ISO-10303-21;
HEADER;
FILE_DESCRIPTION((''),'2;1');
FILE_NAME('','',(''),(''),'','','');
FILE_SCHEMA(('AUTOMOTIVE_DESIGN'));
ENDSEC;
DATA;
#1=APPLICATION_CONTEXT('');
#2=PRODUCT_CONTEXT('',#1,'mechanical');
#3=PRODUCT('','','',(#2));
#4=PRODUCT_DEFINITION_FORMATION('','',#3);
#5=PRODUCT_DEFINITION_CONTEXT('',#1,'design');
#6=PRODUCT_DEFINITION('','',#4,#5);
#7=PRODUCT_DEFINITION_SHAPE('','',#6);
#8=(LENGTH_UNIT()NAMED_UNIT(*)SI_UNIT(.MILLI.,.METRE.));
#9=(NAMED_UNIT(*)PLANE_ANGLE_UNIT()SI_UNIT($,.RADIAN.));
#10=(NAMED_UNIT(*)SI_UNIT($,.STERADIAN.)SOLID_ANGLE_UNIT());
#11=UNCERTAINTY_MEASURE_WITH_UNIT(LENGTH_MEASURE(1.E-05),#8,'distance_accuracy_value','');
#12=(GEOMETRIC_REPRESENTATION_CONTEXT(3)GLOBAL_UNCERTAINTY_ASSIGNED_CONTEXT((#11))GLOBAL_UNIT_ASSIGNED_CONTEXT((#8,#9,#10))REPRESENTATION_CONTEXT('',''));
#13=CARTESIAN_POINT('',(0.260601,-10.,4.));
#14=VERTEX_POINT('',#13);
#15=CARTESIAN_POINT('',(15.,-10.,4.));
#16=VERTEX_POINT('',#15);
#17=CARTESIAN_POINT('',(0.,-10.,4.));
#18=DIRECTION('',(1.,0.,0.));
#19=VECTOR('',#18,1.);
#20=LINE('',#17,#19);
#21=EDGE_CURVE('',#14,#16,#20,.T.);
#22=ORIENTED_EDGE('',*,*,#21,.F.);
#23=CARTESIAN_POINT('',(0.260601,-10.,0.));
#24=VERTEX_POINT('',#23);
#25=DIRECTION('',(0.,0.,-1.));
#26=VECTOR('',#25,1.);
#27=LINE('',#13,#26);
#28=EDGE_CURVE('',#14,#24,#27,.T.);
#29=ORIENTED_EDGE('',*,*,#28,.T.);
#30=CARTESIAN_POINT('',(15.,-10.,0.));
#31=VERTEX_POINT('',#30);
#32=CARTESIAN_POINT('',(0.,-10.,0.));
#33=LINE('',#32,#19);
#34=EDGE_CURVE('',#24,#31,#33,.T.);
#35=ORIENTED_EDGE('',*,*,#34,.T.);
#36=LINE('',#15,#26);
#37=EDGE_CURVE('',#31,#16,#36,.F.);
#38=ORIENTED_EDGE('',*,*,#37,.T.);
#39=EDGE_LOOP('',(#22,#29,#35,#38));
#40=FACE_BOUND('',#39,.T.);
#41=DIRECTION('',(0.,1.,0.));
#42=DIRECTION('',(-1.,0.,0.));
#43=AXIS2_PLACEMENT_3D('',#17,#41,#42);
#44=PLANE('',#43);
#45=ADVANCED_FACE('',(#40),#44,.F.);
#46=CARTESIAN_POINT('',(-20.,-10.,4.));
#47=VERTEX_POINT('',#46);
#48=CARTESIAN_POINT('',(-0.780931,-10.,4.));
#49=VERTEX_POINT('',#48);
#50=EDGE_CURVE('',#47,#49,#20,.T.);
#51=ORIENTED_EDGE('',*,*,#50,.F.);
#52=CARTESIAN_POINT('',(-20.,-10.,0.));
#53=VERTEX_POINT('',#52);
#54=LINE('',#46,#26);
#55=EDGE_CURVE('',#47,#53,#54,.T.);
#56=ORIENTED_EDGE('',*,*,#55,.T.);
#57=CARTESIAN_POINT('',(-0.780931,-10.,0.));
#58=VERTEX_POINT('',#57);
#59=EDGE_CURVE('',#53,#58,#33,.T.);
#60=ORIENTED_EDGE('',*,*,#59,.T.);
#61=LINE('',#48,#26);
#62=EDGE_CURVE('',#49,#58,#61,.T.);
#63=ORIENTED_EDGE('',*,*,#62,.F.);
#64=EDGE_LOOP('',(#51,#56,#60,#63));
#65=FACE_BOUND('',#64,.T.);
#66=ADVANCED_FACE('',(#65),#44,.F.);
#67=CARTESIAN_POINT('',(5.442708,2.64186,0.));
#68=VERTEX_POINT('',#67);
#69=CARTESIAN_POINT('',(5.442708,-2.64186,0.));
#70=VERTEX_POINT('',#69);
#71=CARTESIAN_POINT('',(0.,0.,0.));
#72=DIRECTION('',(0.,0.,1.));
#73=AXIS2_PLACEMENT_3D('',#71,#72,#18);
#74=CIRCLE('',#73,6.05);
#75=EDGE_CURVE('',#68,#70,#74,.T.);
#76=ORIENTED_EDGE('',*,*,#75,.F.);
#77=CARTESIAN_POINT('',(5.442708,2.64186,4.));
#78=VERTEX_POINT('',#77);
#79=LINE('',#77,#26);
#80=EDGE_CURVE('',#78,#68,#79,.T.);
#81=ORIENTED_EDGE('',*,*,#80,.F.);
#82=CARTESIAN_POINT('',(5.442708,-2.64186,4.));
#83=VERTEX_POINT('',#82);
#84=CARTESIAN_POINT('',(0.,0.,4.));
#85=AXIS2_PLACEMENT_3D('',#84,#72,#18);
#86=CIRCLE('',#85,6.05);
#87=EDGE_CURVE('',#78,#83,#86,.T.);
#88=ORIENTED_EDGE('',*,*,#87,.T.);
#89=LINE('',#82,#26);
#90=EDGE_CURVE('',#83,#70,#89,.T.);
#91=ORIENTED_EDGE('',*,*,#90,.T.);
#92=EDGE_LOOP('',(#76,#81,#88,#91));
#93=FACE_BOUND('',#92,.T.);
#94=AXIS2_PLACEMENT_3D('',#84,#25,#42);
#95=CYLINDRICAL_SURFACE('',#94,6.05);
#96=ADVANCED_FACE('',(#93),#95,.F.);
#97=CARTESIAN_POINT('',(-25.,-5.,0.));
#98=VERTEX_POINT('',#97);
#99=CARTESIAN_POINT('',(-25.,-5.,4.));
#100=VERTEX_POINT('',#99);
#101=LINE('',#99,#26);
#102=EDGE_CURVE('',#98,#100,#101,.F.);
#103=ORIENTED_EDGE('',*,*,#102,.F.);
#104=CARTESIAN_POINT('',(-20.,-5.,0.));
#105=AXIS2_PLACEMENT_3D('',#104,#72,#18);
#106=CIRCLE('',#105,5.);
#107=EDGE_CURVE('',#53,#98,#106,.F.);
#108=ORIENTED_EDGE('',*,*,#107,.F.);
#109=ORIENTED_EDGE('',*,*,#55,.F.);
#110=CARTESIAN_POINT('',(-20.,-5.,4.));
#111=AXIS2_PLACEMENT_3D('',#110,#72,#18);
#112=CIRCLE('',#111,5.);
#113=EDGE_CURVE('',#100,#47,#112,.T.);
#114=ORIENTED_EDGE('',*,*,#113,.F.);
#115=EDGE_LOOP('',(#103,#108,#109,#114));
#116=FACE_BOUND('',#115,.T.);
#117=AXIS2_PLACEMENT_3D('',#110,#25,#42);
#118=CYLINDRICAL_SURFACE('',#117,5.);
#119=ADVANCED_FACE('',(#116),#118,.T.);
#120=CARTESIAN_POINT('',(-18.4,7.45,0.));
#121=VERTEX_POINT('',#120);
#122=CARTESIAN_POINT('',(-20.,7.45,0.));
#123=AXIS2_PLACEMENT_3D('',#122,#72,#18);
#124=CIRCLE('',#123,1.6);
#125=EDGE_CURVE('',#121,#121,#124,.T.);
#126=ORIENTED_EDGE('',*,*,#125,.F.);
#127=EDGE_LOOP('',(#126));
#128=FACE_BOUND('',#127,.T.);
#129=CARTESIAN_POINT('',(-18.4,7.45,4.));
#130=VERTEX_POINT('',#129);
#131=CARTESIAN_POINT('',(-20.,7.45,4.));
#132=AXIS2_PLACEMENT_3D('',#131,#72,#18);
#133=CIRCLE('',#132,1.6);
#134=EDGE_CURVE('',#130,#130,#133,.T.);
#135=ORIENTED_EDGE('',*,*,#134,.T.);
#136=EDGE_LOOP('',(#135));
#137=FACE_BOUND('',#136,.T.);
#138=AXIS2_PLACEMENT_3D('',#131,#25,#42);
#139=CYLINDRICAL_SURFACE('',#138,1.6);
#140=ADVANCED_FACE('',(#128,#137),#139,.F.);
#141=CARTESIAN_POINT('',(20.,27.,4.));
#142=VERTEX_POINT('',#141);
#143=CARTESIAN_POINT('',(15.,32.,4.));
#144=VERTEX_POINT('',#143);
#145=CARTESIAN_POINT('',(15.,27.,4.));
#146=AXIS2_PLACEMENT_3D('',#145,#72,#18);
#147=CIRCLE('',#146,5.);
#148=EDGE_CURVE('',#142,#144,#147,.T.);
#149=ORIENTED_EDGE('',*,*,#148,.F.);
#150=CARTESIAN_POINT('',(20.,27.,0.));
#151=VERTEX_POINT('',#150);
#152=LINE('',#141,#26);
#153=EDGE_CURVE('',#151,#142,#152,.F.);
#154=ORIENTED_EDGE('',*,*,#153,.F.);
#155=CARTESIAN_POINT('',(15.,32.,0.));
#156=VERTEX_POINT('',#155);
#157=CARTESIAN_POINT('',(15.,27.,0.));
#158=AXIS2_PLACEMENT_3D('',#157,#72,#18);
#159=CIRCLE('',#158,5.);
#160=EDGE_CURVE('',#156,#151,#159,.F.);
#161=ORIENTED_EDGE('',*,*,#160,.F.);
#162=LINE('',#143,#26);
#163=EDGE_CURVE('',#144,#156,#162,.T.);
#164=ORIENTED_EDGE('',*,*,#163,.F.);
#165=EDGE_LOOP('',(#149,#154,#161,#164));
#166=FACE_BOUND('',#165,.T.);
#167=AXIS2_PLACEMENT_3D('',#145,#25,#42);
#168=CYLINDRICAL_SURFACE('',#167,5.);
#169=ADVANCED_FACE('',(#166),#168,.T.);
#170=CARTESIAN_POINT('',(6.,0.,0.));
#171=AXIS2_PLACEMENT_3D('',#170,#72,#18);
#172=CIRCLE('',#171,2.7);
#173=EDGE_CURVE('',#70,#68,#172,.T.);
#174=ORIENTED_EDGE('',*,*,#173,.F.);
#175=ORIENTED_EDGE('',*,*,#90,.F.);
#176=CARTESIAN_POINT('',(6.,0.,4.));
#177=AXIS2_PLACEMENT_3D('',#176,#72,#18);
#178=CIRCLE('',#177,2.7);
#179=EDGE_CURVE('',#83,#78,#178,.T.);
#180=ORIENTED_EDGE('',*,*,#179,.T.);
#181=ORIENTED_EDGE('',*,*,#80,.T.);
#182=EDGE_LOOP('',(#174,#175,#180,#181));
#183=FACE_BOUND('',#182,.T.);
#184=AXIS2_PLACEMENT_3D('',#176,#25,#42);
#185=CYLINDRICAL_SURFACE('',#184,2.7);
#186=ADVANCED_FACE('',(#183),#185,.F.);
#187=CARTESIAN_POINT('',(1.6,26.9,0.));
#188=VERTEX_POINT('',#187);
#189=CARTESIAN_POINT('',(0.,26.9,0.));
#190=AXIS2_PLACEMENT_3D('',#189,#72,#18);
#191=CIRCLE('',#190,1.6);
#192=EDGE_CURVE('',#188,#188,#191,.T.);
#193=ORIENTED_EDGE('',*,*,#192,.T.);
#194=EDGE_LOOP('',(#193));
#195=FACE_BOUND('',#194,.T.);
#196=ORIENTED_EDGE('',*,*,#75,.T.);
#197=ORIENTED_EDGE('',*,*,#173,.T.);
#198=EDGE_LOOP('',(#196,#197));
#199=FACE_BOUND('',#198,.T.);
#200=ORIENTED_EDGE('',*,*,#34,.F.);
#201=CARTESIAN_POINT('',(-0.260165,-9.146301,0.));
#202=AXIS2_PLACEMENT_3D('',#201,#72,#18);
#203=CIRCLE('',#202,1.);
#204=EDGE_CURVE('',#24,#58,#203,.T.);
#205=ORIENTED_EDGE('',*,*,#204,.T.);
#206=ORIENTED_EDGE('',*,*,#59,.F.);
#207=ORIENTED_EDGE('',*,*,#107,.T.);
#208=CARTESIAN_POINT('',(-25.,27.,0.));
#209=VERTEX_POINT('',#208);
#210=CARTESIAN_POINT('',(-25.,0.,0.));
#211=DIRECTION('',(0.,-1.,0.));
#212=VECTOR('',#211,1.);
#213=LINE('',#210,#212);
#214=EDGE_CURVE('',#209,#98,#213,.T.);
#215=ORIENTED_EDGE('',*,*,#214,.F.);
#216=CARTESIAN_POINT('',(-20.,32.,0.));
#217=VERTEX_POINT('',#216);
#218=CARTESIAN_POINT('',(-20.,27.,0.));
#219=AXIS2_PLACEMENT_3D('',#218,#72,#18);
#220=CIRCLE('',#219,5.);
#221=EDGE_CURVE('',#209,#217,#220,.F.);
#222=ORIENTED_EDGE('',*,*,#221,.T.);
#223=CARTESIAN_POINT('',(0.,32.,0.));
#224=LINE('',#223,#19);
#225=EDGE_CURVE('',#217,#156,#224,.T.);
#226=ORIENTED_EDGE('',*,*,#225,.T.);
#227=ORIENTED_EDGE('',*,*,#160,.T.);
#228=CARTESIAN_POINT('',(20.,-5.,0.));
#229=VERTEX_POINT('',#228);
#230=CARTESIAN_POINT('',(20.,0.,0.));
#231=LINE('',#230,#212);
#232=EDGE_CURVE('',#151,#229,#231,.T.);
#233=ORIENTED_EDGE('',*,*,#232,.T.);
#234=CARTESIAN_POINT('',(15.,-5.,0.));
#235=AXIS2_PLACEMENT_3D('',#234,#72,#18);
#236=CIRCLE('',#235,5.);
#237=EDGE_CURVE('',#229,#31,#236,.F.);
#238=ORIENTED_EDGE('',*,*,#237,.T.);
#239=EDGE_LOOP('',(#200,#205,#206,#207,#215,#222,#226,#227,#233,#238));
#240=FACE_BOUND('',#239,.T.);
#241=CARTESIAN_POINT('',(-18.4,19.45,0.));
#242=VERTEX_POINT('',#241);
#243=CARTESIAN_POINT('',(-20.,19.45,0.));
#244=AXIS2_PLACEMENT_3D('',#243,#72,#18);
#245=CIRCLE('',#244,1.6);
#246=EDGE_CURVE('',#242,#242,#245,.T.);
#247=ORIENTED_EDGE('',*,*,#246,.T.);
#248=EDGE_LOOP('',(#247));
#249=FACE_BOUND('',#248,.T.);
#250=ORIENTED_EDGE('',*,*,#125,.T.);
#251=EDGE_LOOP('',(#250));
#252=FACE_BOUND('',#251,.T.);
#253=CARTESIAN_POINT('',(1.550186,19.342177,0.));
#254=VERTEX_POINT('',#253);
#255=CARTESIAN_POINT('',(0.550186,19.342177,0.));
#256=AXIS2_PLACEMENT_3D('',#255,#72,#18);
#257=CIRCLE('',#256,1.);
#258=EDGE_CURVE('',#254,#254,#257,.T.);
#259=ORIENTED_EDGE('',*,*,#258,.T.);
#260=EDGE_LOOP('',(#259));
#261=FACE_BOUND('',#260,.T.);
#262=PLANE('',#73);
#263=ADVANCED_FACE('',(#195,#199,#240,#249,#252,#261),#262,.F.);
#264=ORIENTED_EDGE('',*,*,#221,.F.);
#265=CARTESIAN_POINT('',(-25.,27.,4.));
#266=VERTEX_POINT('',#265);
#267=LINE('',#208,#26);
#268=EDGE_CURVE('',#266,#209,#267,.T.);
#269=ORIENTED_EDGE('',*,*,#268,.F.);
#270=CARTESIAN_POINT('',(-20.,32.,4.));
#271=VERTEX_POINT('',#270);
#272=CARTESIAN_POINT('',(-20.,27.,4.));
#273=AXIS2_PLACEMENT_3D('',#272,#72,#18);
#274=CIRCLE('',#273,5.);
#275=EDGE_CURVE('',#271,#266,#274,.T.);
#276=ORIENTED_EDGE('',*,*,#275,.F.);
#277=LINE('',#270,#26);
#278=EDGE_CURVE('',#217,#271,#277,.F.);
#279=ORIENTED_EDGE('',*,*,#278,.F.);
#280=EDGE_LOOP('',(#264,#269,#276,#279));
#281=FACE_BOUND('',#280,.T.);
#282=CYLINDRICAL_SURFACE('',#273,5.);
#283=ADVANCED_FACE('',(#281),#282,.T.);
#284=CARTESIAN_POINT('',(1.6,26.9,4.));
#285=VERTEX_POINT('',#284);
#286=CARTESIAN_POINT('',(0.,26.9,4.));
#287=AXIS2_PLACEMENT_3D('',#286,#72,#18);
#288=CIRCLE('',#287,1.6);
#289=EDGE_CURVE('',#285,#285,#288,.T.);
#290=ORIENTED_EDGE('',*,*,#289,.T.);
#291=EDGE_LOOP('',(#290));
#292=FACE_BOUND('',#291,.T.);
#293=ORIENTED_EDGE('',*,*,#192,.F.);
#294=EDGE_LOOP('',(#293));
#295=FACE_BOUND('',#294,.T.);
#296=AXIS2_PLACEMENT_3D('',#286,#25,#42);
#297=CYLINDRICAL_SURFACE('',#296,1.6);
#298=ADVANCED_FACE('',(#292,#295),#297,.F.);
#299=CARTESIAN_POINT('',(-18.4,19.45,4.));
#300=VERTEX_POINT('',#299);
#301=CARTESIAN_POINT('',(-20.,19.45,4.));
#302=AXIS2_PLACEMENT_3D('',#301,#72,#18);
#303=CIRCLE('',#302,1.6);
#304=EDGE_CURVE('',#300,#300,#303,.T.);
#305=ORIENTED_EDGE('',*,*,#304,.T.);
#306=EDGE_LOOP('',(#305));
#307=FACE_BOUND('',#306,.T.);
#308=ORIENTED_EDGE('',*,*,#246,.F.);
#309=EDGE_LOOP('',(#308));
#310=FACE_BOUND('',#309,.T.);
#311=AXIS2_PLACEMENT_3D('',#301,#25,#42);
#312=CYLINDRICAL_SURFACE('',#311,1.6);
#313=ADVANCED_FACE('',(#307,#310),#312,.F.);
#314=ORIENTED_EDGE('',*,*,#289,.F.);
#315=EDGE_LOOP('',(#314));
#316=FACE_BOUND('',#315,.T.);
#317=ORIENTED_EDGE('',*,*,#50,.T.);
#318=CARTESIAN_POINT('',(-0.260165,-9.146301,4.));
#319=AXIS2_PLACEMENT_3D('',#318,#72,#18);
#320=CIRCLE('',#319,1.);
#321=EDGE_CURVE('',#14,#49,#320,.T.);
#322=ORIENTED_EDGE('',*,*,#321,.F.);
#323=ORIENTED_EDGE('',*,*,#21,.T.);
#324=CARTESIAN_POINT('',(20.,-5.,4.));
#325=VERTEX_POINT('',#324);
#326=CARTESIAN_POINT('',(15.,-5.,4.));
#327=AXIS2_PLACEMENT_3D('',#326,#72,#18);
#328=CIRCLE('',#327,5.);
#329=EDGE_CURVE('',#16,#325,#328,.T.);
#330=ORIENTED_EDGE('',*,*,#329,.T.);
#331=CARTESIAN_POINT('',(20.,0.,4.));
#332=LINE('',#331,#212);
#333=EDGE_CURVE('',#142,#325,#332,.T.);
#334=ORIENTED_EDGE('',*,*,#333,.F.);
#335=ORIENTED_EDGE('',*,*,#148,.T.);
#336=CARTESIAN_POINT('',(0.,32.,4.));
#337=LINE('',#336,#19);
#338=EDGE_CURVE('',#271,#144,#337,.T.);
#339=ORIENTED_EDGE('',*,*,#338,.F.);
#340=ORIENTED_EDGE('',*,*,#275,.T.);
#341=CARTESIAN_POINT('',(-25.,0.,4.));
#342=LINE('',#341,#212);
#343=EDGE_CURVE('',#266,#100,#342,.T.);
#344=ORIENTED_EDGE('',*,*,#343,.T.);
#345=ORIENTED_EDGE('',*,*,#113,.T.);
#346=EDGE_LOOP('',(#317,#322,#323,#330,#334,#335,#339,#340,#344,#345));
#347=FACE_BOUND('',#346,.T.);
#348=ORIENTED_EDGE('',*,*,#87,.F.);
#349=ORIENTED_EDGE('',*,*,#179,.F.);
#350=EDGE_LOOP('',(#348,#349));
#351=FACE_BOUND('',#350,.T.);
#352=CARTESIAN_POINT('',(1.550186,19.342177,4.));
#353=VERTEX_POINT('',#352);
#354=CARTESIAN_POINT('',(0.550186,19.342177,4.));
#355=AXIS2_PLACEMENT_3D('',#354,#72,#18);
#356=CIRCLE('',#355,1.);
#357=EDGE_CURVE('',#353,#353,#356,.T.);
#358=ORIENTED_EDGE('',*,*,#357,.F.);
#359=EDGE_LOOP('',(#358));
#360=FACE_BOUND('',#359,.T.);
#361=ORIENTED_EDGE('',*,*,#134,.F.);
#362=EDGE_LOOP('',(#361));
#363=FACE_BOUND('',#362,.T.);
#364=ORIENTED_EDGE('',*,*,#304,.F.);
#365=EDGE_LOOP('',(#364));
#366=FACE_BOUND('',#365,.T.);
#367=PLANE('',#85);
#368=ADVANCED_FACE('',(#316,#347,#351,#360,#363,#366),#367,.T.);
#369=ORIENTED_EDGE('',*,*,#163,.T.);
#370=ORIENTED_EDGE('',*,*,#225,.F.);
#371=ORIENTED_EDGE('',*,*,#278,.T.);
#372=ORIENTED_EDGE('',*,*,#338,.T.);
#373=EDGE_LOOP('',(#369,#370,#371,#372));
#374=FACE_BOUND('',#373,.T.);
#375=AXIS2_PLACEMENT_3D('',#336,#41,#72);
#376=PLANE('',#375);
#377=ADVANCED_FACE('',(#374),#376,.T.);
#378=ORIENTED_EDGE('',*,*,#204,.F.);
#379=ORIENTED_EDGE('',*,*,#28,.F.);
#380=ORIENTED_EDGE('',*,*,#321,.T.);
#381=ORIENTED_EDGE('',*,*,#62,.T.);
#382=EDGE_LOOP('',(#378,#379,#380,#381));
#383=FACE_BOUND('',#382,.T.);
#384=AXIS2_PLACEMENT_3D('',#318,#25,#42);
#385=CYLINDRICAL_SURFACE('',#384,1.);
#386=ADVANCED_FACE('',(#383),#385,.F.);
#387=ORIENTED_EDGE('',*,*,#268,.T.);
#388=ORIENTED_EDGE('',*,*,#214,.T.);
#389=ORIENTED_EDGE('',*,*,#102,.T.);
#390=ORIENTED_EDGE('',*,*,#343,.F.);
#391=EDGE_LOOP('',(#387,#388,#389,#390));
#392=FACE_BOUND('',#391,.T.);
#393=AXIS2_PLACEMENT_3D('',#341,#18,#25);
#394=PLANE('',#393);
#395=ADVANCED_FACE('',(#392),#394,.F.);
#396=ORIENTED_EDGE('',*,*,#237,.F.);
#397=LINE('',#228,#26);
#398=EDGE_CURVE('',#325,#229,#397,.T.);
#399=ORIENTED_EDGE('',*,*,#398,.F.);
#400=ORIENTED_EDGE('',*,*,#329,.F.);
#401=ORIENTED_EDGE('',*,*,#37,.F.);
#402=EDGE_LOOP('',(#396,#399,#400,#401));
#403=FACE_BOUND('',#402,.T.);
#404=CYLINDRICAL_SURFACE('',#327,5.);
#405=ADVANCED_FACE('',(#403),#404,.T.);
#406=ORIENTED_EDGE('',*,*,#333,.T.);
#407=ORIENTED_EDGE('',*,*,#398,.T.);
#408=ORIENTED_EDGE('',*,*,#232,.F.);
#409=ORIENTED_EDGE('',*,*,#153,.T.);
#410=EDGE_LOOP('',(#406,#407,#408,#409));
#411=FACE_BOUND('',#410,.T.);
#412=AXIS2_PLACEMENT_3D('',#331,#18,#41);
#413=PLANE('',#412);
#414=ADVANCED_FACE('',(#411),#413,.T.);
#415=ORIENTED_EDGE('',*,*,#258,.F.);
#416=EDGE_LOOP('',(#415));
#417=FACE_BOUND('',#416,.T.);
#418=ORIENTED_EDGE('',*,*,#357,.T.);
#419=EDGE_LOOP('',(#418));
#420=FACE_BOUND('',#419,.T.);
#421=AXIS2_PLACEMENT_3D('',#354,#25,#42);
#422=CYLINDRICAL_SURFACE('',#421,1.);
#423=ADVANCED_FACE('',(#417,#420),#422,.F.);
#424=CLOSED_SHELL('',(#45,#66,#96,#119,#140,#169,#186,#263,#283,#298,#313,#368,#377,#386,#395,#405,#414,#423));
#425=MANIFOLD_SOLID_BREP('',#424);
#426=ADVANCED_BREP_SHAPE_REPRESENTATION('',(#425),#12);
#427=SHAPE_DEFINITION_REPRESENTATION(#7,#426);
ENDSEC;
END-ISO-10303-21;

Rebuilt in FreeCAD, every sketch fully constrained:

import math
import FreeCAD as App
import Part
import Sketcher

V = App.Vector


def edges_at(feature, points):
    """Names of the edges that pass closest to the given points."""
    edges = feature.Shape.Edges
    near = lambda p: min(range(len(edges)), key=lambda i: edges[i].distToShape(Part.Vertex(*p))[0])
    return sorted({f"Edge{near(p) + 1}" for p in points})

doc = App.newDocument("Part")
body = doc.addObject("PartDesign::Body", "Body")

# Sketch on XY plane
sketch1 = body.newObject("Sketcher::SketchObject", "Sketch")
sketch1.AttachmentSupport = (doc.getObject("XY_Plane"), [""])
sketch1.MapMode = "FlatFace"
sketch1.addGeometry([
    Part.LineSegment(V(20, 32, 0), V(-25, 32, 0)),  # 0
    Part.LineSegment(V(-25, 32, 0), V(-25, -10, 0)),  # 1
    Part.LineSegment(V(-25, -10, 0), V(-0.78, -10, 0)),  # 2
    Part.ArcOfCircle(Part.Circle(V(-0.26, -9.15, 0), V(0, 0, 1), 1), math.radians(-128.5), math.radians(-121.38)),  # 3
    Part.ArcOfCircle(Part.Circle(V(-0.26, -9.15, 0), V(0, 0, 1), 1), math.radians(-55), math.radians(232)),  # 4
    Part.ArcOfCircle(Part.Circle(V(-0.26, -9.15, 0), V(0, 0, 1), 1), math.radians(-58.62), math.radians(-54.76)),  # 5
    Part.LineSegment(V(0.26, -10, 0), V(20, -10, 0)),  # 6
    Part.LineSegment(V(20, -10, 0), V(20, 32, 0)),  # 7
    Part.Circle(V(-20, 7.45, 0), V(0, 0, 1), 1.6),  # 8
    Part.ArcOfCircle(Part.Circle(V(6, 0, 0), V(0, 0, 1), 2.7), math.radians(-102), math.radians(102)),  # 9
    Part.ArcOfCircle(Part.Circle(V(0, 0, 0), V(0, 0, 1), 6.05), math.radians(26), math.radians(334)),  # 10
    Part.Circle(V(-20, 19.45, 0), V(0, 0, 1), 1.6),  # 11
    Part.ArcOfCircle(Part.Circle(V(0.55, 19.34, 0), V(0, 0, 1), 1), math.radians(-45), math.radians(52)),  # 12
    Part.ArcOfCircle(Part.Circle(V(0.55, 19.34, 0), V(0, 0, 1), 1), math.radians(125), math.radians(315)),  # 13
    Part.ArcOfCircle(Part.Circle(V(0.55, 19.34, 0), V(0, 0, 1), 1), math.radians(52), math.radians(125)),  # 14
    Part.Circle(V(0, 26.9, 0), V(0, 0, 1), 1.6),  # 15
], False)
sketch1.addConstraint([
    Sketcher.Constraint("Coincident", 0, 2, 1, 1),
    Sketcher.Constraint("Coincident", 1, 2, 2, 1),
    Sketcher.Constraint("Coincident", 2, 2, 3, 2),
    Sketcher.Constraint("Tangent", 3, 1, 4, 2),
    Sketcher.Constraint("Tangent", 4, 1, 5, 2),
    Sketcher.Constraint("Coincident", 5, 1, 6, 1),
    Sketcher.Constraint("Coincident", 6, 2, 7, 1),
    Sketcher.Constraint("Coincident", 7, 2, 0, 1),
    Sketcher.Constraint("Coincident", 9, 1, 10, 2),
    Sketcher.Constraint("Coincident", 10, 1, 9, 2),
    Sketcher.Constraint("Tangent", 12, 1, 13, 2),
    Sketcher.Constraint("Tangent", 13, 1, 14, 2),
    Sketcher.Constraint("Tangent", 14, 1, 12, 2),
    Sketcher.Constraint("Horizontal", 0),
    Sketcher.Constraint("Vertical", 1),
    Sketcher.Constraint("Horizontal", 2),
    Sketcher.Constraint("Horizontal", 6),
    Sketcher.Constraint("Vertical", 7),
    Sketcher.Constraint("Coincident", 10, 3, -1, 1),
    Sketcher.Constraint("Coincident", 5, 3, 3, 3),
    Sketcher.Constraint("Equal", 8, 11),
    Sketcher.Constraint("Equal", 5, 12),
    Sketcher.Constraint("Equal", 11, 15),
    Sketcher.Constraint("PointOnObject", 9, 3, -1),
    Sketcher.Constraint("PointOnObject", 15, 3, -2),
    Sketcher.Constraint("Horizontal", 2, 2, 5, 1),
    Sketcher.Constraint("Vertical", 8, 3, 11, 3),
    Sketcher.Constraint("Radius", 3, 1.0),
    Sketcher.Constraint("Diameter", 8, 3.2),
    Sketcher.Constraint("Radius", 9, 2.7),
    Sketcher.Constraint("DistanceX", 0, 2, 0, 1, 45.0),
    Sketcher.Constraint("DistanceY", 1, 2, 1, 1, 42.0),
    Sketcher.Constraint("Radius", 10, 6.05),
    Sketcher.Constraint("DistanceX", 8, 3, -1, 1, 20.0),
    Sketcher.Constraint("DistanceX", -1, 1, 9, 3, 6.0),
    Sketcher.Constraint("DistanceX", 0, 2, -1, 1, 25.0),
    Sketcher.Constraint("DistanceY", -1, 1, 0, 2, 32.0),
    Sketcher.Constraint("DistanceY", 8, 3, 11, 3, 12.0),
    Sketcher.Constraint("DistanceY", -1, 1, 15, 3, 26.9),
    Sketcher.Constraint("DistanceY", -1, 1, 8, 3, 7.45),
    Sketcher.Constraint("DistanceX", 6, 1, 6, 2, 19.739399),
    Sketcher.Constraint("DistanceX", 2, 1, 2, 2, 24.219069),
    Sketcher.Constraint("DistanceX", 3, 1, -1, 1, 0.882669),
    Sketcher.Constraint("DistanceX", -1, 1, 14, 1, 1.17269),
    Sketcher.Constraint("DistanceX", 5, 3, 12, 3, 0.810352),
    Sketcher.Constraint("DistanceX", 4, 3, 4, 1, 0.577011),
    Sketcher.Constraint("DistanceX", 12, 3, 12, 1, 0.700958),
    Sketcher.Constraint("DistanceX", 13, 1, 14, 3, 0.577011),
    Sketcher.Constraint("DistanceY", -1, 1, 12, 3, 19.342177),
])
pad1 = body.newObject("PartDesign::Pad", "Pad")
pad1.Profile = sketch1
pad1.Length = 4
doc.recompute()

fillet = body.newObject("PartDesign::Fillet", "Fillet")
fillet.Base = (pad1, edges_at(pad1, [
    (-25, -10, 2),
    (-25, 32, 2),
    (20, 32, 2),
    (20, -10, 2),
]))
fillet.Radius = 5

doc.recompute()
